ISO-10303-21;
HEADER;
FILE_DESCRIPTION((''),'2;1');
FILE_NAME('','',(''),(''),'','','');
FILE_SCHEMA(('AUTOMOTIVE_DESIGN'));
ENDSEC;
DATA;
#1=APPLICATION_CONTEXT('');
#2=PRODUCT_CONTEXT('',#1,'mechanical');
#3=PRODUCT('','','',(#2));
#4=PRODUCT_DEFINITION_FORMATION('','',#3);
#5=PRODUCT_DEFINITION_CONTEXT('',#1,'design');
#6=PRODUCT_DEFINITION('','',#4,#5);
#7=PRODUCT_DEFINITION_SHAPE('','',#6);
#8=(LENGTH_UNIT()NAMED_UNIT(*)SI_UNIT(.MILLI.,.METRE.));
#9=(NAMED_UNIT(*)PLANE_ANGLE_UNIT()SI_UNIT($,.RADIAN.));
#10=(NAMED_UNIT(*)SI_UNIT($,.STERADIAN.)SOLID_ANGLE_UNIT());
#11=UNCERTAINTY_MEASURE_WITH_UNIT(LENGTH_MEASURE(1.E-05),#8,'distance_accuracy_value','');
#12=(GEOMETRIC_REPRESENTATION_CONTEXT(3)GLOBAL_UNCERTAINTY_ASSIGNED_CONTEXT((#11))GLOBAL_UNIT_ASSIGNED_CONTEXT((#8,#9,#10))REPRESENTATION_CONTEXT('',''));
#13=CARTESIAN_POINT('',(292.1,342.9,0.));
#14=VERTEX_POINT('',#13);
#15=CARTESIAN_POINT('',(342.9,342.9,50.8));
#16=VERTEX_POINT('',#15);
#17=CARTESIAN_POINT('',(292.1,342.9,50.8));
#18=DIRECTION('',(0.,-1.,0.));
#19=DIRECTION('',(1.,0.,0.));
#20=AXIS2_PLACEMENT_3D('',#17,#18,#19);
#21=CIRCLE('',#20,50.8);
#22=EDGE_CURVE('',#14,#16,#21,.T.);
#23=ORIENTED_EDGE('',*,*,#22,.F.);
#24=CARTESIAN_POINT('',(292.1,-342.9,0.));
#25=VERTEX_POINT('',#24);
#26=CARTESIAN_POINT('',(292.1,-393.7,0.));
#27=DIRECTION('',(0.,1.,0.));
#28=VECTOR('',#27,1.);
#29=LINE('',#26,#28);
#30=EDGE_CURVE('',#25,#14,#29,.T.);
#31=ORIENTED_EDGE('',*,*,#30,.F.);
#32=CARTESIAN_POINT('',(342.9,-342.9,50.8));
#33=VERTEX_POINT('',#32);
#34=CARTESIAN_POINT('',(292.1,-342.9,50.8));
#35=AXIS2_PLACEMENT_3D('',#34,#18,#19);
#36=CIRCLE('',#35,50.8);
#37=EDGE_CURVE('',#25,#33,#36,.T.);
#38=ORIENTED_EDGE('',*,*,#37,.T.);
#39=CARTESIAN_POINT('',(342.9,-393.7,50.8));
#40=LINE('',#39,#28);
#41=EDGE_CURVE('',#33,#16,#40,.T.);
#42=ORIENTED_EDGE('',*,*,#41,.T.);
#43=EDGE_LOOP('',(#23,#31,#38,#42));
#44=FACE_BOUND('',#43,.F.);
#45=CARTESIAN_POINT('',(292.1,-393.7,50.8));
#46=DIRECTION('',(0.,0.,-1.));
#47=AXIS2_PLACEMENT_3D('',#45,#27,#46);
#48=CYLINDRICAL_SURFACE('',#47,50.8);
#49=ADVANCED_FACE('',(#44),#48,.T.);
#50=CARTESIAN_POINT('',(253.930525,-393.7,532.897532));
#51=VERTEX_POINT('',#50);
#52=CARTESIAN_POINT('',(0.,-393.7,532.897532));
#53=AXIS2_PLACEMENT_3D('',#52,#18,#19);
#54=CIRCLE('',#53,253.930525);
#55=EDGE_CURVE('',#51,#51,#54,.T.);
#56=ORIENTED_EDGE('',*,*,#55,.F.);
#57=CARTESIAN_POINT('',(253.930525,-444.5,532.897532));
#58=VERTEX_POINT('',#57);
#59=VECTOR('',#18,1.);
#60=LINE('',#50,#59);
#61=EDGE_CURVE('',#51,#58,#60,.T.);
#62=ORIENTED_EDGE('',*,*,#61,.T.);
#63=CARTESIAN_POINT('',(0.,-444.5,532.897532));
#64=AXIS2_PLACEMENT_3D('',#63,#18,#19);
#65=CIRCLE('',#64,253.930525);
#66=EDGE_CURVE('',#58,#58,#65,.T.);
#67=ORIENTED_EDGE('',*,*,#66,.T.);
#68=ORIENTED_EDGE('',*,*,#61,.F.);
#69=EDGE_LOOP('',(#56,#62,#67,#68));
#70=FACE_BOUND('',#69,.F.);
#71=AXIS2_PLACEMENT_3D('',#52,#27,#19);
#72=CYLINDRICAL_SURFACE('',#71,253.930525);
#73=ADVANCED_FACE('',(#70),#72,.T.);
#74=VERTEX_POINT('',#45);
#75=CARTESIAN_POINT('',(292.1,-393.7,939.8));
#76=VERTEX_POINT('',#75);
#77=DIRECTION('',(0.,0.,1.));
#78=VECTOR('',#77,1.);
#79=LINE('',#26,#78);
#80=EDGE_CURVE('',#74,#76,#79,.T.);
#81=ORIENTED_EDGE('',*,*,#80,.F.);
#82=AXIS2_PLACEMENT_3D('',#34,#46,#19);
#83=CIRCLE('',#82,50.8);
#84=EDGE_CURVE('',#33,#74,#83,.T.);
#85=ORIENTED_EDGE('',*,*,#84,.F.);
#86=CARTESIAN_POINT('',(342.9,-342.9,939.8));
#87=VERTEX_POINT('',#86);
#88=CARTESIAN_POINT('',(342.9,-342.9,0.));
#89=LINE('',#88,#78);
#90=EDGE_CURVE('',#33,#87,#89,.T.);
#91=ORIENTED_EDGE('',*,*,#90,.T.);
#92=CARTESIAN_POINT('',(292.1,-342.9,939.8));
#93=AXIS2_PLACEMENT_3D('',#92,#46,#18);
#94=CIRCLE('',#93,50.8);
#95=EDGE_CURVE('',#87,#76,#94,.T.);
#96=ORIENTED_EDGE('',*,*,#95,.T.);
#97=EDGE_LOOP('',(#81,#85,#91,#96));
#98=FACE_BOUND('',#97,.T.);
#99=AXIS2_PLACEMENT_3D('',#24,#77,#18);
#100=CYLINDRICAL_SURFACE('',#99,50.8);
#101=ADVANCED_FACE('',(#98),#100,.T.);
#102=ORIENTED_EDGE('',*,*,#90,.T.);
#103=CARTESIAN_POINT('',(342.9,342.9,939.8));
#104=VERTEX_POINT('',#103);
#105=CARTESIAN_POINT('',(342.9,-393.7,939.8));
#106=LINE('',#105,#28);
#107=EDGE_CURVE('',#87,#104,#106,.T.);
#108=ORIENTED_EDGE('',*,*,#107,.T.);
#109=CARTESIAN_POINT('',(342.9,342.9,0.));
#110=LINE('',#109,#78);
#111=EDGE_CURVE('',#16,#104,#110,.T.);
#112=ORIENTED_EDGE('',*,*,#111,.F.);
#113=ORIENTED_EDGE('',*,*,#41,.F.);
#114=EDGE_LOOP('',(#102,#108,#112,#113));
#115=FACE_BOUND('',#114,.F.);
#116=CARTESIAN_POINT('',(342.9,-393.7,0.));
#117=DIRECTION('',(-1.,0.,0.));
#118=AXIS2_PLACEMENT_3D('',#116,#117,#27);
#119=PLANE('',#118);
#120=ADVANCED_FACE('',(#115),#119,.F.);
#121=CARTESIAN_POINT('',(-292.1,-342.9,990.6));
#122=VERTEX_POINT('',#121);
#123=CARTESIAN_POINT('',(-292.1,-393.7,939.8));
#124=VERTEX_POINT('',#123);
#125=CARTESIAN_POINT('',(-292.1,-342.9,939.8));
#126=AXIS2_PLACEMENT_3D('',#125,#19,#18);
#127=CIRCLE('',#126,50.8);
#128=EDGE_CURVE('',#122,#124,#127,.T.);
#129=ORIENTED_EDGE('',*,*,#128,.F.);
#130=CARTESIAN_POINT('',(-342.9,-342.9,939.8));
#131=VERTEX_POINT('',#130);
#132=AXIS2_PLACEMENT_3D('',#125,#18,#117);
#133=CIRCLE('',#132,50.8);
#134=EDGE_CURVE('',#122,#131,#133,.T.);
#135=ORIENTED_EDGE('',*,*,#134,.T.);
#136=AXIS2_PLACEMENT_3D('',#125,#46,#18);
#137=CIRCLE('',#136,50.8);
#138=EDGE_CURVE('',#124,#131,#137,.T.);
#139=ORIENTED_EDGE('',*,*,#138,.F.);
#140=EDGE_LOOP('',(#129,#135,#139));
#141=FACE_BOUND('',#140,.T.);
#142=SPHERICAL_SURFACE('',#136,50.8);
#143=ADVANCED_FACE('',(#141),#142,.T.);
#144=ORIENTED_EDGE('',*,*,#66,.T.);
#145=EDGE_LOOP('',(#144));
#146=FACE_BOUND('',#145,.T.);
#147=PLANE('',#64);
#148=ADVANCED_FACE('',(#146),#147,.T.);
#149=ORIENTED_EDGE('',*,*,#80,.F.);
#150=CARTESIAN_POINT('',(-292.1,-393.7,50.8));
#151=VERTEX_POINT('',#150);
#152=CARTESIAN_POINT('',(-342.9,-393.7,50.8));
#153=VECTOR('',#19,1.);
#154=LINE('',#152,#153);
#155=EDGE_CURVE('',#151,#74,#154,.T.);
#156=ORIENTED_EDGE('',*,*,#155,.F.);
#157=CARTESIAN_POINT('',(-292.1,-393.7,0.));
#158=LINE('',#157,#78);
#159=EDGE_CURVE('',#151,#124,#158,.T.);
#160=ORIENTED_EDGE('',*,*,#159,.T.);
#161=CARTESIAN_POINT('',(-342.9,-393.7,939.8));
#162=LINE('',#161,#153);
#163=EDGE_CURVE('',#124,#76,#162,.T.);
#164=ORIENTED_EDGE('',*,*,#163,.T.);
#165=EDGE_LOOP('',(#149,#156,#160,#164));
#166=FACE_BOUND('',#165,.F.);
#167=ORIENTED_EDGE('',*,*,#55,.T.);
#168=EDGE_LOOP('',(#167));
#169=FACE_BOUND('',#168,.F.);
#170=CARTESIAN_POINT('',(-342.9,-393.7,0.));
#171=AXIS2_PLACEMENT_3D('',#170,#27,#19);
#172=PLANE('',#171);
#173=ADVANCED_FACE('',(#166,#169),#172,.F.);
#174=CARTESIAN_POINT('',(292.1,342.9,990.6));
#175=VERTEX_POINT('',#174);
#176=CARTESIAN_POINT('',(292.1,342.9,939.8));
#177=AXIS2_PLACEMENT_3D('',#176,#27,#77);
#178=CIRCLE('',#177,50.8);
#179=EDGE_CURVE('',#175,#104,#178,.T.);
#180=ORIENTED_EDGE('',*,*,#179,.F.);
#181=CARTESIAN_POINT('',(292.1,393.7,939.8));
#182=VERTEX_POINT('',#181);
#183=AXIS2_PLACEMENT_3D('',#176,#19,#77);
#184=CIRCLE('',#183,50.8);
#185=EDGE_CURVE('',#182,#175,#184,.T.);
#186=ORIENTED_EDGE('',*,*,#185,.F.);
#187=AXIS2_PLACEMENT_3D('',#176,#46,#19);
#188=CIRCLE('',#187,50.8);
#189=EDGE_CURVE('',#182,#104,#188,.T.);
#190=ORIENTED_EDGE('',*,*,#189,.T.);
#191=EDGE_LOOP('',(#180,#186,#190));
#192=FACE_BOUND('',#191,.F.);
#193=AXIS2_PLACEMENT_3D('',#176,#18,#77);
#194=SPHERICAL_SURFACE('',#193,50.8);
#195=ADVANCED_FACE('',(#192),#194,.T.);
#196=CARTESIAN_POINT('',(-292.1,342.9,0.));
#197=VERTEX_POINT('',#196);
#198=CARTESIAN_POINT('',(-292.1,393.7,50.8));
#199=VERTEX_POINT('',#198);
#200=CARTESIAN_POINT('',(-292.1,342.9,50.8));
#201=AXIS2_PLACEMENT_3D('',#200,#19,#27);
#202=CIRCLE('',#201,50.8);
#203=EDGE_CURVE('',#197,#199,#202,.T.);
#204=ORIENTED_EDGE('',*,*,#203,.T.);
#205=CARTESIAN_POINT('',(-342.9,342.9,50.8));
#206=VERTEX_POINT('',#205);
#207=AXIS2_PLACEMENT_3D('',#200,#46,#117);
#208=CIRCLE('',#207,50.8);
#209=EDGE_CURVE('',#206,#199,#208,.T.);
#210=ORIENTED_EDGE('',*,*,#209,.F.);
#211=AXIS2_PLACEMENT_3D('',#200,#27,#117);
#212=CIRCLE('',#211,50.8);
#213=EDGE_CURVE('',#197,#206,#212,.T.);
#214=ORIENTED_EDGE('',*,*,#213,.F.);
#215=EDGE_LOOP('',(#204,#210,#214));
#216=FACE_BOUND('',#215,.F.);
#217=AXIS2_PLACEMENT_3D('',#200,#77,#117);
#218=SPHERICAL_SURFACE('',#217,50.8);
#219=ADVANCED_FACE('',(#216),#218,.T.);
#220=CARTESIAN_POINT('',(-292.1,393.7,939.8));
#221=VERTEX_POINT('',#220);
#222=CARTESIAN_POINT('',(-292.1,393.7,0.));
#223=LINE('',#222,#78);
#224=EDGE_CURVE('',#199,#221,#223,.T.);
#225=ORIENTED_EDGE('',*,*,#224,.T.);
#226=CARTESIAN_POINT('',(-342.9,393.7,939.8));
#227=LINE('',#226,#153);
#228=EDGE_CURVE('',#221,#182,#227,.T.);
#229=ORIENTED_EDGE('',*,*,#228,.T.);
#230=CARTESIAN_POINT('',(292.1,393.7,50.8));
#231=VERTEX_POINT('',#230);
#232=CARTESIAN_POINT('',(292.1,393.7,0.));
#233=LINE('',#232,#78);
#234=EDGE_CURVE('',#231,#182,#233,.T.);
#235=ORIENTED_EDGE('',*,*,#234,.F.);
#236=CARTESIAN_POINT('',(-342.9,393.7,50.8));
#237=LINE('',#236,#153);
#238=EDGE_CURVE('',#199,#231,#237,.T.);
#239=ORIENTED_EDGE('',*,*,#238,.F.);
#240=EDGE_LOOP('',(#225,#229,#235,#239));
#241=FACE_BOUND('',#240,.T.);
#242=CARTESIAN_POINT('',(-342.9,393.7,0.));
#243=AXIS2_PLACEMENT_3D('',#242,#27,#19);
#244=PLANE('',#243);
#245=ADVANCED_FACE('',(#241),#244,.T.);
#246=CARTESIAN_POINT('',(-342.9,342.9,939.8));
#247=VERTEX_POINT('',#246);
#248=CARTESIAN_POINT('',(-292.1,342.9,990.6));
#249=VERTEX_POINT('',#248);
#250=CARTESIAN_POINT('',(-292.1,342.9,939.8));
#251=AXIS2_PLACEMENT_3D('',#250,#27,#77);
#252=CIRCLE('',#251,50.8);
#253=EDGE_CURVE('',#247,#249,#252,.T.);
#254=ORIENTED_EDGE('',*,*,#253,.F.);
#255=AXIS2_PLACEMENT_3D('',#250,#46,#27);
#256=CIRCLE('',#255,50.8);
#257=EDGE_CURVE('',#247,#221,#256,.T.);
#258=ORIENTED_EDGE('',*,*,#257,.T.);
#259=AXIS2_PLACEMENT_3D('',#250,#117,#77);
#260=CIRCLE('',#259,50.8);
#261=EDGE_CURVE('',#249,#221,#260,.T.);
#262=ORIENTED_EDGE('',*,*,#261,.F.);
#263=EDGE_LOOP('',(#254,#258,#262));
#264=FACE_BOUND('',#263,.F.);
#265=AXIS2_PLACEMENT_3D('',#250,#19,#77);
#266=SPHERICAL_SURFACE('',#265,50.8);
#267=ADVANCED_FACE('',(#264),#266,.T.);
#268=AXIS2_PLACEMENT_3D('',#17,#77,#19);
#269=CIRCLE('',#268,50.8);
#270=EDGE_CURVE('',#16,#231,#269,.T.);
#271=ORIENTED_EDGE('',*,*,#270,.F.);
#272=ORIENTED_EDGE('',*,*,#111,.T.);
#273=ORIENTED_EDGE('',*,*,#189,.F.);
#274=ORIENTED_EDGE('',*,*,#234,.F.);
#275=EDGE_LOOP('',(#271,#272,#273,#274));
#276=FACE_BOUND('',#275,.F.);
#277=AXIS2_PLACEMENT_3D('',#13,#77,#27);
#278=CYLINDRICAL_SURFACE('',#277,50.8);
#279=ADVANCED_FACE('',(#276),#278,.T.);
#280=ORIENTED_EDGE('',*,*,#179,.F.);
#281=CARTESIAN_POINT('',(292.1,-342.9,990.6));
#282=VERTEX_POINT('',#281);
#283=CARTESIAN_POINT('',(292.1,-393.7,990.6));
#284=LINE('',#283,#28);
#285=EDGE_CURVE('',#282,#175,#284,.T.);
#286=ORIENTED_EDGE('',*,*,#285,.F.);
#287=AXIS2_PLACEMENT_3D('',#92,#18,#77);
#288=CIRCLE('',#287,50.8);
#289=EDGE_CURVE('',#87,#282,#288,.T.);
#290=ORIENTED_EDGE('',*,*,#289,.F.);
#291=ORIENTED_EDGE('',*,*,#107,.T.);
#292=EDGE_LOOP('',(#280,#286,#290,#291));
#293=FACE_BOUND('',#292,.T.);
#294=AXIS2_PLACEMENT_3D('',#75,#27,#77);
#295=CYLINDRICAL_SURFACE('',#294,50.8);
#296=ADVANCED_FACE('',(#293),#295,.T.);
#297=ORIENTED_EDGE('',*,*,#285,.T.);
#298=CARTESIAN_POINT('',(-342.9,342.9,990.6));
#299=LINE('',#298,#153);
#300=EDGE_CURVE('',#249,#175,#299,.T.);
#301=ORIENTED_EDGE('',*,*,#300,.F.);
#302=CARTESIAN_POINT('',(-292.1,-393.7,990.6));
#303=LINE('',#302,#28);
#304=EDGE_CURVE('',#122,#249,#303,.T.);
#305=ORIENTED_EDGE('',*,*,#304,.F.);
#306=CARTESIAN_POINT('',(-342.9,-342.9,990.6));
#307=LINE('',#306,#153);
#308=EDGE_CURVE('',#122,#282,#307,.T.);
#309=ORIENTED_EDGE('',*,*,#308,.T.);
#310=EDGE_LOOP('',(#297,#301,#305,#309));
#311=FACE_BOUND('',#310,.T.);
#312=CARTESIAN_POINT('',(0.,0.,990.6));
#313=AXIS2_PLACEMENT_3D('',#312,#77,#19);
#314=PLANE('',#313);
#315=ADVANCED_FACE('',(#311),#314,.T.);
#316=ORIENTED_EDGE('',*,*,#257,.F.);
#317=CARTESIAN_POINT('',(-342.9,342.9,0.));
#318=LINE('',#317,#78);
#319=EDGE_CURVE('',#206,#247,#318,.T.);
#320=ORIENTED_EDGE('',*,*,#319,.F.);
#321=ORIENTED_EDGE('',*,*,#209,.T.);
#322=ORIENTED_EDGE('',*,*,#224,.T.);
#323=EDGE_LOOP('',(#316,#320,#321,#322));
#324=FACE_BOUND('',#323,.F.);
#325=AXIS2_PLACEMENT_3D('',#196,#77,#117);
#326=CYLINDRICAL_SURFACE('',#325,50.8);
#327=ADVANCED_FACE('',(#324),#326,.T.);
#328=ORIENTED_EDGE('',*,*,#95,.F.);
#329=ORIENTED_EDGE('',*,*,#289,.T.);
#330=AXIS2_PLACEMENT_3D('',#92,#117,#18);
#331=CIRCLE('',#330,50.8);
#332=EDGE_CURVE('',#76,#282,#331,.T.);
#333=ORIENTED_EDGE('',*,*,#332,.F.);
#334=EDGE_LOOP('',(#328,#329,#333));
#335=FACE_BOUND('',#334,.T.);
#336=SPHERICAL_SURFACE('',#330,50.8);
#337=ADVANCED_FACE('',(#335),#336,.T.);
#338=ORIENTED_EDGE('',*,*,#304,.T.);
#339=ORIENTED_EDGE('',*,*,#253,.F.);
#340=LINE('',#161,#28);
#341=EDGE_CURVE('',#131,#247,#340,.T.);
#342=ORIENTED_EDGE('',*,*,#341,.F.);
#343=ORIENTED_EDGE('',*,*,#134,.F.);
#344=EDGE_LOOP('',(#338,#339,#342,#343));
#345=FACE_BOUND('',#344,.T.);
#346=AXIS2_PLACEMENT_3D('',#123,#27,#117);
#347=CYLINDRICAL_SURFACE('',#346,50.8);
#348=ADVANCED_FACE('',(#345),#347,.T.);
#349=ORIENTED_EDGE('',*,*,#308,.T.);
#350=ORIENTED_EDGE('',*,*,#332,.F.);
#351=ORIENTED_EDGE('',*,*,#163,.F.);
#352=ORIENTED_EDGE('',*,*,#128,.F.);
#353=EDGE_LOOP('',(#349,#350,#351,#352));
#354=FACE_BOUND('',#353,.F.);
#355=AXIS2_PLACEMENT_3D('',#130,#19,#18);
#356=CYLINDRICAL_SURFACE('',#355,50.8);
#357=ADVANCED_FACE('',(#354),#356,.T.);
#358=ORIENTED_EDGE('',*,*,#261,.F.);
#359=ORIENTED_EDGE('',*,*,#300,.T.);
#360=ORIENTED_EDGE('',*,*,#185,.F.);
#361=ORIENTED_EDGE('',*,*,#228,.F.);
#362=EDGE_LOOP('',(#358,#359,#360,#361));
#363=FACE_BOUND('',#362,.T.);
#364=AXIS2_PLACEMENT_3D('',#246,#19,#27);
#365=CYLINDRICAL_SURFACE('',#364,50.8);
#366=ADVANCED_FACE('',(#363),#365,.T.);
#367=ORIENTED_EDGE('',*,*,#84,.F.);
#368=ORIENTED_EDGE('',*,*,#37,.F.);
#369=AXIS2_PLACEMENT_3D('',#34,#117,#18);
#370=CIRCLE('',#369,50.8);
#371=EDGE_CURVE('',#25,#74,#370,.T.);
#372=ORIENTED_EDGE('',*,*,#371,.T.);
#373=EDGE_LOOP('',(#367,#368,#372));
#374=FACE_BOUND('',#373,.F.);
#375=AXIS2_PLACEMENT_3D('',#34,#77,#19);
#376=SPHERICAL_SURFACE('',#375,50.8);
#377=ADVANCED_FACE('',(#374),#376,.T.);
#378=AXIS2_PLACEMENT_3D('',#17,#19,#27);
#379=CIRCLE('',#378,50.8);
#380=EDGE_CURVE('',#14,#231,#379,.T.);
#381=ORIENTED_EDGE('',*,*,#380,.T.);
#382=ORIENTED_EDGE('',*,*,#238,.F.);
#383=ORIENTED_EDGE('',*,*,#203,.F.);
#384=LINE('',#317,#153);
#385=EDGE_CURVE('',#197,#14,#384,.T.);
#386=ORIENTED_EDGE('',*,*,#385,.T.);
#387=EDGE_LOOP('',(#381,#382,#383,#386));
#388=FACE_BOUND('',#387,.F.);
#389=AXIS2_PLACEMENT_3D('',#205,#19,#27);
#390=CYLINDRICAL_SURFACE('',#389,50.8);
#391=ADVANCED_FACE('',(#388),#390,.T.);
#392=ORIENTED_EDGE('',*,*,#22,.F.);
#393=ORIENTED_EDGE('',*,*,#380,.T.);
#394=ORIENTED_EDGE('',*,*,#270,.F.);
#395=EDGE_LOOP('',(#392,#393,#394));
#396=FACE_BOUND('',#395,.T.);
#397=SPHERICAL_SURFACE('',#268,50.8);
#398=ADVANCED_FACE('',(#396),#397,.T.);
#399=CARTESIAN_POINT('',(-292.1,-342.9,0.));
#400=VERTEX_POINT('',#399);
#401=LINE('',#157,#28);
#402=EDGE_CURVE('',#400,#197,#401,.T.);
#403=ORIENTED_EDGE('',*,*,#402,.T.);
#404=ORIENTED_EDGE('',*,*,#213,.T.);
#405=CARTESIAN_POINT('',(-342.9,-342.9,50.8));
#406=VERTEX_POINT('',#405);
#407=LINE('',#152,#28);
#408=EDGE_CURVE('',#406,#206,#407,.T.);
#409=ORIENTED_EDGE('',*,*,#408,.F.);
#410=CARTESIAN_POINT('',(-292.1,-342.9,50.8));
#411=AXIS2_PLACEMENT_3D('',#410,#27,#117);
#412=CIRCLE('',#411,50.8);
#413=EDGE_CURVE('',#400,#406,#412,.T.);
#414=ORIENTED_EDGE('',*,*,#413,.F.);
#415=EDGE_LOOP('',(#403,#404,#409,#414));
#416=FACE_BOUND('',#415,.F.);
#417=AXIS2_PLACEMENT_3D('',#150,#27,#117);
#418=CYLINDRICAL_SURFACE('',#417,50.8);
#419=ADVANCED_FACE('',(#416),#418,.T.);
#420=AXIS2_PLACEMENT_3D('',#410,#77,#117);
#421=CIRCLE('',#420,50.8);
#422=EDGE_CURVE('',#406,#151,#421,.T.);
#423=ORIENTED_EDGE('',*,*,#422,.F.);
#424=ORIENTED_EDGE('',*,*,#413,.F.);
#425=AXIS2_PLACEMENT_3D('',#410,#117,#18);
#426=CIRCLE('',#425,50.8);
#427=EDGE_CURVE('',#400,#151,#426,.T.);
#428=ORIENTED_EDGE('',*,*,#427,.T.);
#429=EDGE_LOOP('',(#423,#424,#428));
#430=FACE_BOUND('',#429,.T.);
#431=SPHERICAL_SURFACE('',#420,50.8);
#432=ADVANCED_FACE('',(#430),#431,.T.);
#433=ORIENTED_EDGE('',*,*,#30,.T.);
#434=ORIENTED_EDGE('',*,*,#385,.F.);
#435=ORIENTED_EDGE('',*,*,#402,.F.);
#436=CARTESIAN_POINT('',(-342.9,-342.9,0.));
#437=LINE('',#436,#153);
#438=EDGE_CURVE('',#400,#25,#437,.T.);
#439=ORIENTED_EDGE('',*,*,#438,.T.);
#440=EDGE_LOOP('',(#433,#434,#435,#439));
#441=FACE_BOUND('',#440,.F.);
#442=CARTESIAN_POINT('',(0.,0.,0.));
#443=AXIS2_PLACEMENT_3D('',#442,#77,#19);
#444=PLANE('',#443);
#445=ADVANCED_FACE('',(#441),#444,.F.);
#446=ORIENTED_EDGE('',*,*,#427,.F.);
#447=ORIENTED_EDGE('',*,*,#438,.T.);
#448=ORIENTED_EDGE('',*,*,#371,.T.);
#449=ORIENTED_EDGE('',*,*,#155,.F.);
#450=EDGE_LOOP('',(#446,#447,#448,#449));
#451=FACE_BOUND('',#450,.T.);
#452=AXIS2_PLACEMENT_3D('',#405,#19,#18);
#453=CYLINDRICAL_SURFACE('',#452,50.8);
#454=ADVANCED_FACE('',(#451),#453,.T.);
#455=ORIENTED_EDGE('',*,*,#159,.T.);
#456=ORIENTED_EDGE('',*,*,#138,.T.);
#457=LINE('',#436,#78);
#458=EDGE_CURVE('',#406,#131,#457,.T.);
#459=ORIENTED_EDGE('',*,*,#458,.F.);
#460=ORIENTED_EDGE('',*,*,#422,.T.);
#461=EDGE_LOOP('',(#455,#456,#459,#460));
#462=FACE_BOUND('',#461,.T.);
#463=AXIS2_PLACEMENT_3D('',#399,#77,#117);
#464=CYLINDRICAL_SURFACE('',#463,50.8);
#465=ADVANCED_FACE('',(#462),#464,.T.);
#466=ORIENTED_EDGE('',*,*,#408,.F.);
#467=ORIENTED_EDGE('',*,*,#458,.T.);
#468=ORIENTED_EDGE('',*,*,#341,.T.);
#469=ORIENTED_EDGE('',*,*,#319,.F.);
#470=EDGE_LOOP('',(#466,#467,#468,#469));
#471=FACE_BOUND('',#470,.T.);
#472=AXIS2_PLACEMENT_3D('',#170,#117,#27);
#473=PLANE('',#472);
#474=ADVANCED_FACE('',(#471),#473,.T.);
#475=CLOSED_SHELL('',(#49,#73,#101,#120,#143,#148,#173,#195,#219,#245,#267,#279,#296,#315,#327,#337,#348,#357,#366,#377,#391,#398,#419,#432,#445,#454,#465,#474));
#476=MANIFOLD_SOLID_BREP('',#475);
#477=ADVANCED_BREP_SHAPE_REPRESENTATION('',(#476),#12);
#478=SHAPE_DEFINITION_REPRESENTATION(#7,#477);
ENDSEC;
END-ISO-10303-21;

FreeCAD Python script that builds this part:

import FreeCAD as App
import Part
import Sketcher
Q = App.Units.Quantity


def edges_at(feature, points):
    """Names of the edges that pass closest to the given points."""
    edges = feature.Shape.Edges
    near = lambda p: min(range(len(edges)), key=lambda i: edges[i].distToShape(Part.Vertex(*p))[0])
    return sorted({f"Edge{near(p) + 1}" for p in points})


def add_polygon(sketch, points):
    """Adds a closed chain of lines whose ends are joined by coincident constraints."""
    first, n = sketch.GeometryCount, len(points)
    for a, b in zip(points, points[1:] + points[:1]):
        sketch.addGeometry(Part.LineSegment(App.Vector(*a, 0), App.Vector(*b, 0)), False)
    for i in range(n):
        sketch.addConstraint(Sketcher.Constraint("Coincident", first + i, 2, first + (i + 1) % n, 1))

doc = App.newDocument("Part")
body = doc.addObject("PartDesign::Body", "Body")

# Sketch on XY plane
sketch1 = doc.addObject("Sketcher::SketchObject", "Sketch")
body.addObject(sketch1)
sketch1.AttachmentSupport = (doc.XY_Plane, [""])
sketch1.MapMode = "FlatFace"
add_polygon(sketch1, [(-343, 394), (-343, -394), (343, -394), (343, 394)])  # lines 0-3
sketch1.addConstraint([
    Sketcher.Constraint("Vertical", 0),
    Sketcher.Constraint("Horizontal", 1),
    Sketcher.Constraint("Vertical", 2),
    Sketcher.Constraint("Horizontal", 3),
    Sketcher.Constraint("Symmetric", 0, 2, 2, 2, -1, 1),
    Sketcher.Constraint("DistanceX", 1, 1, 1, 2, Q("27 in")),
    Sketcher.Constraint("DistanceY", 0, 2, 0, 1, Q("31 in")),
])
pad1 = doc.addObject("PartDesign::Pad", "Pad")
body.addObject(pad1)
pad1.Profile = sketch1
pad1.Length = Q("39 in")

# Sketch on XZ plane
sketch2 = doc.addObject("Sketcher::SketchObject", "Sketch001")
body.addObject(sketch2)
sketch2.AttachmentSupport = (doc.XZ_Plane, [""])
sketch2.MapMode = "FlatFace"
sketch2.AttachmentOffset = App.Placement(App.Vector(0, 0, 15.5 * 25.4), App.Rotation())
sketch2.addGeometry(Part.Circle(App.Vector(0, 533, 0), App.Vector(0, 0, 1), 254), False)
sketch2.addConstraint([
    Sketcher.Constraint("PointOnObject", 0, 3, -2),
    Sketcher.Constraint("Diameter", 0, 507.86105),
    Sketcher.Constraint("DistanceY", -1, 1, 0, 3, 532.897532),
])
pad2 = doc.addObject("PartDesign::Pad", "Pad001")
body.addObject(pad2)
pad2.Profile = sketch2
pad2.Length = Q("2 in")
doc.recompute()

fillet = doc.addObject("PartDesign::Fillet", "Fillet")
body.addObject(fillet)
fillet.Base = (pad2, edges_at(pad2, [
    (-342.9, -393.7, 495.3),
    (0, -393.7, 990.6),
    (342.9, -393.7, 495.3),
    (342.9, 0, 990.6),
    (0, 393.7, 990.6),
    (-342.9, 0, 990.6),
    (342.9, 393.7, 495.3),
    (342.9, 0, 0),
    (-342.9, 393.7, 495.3),
    (-342.9, 0, 0),
    (0, -393.7, 0),
    (0, 393.7, 0),
]))
fillet.Radius = Q("2 in")

doc.recompute()
